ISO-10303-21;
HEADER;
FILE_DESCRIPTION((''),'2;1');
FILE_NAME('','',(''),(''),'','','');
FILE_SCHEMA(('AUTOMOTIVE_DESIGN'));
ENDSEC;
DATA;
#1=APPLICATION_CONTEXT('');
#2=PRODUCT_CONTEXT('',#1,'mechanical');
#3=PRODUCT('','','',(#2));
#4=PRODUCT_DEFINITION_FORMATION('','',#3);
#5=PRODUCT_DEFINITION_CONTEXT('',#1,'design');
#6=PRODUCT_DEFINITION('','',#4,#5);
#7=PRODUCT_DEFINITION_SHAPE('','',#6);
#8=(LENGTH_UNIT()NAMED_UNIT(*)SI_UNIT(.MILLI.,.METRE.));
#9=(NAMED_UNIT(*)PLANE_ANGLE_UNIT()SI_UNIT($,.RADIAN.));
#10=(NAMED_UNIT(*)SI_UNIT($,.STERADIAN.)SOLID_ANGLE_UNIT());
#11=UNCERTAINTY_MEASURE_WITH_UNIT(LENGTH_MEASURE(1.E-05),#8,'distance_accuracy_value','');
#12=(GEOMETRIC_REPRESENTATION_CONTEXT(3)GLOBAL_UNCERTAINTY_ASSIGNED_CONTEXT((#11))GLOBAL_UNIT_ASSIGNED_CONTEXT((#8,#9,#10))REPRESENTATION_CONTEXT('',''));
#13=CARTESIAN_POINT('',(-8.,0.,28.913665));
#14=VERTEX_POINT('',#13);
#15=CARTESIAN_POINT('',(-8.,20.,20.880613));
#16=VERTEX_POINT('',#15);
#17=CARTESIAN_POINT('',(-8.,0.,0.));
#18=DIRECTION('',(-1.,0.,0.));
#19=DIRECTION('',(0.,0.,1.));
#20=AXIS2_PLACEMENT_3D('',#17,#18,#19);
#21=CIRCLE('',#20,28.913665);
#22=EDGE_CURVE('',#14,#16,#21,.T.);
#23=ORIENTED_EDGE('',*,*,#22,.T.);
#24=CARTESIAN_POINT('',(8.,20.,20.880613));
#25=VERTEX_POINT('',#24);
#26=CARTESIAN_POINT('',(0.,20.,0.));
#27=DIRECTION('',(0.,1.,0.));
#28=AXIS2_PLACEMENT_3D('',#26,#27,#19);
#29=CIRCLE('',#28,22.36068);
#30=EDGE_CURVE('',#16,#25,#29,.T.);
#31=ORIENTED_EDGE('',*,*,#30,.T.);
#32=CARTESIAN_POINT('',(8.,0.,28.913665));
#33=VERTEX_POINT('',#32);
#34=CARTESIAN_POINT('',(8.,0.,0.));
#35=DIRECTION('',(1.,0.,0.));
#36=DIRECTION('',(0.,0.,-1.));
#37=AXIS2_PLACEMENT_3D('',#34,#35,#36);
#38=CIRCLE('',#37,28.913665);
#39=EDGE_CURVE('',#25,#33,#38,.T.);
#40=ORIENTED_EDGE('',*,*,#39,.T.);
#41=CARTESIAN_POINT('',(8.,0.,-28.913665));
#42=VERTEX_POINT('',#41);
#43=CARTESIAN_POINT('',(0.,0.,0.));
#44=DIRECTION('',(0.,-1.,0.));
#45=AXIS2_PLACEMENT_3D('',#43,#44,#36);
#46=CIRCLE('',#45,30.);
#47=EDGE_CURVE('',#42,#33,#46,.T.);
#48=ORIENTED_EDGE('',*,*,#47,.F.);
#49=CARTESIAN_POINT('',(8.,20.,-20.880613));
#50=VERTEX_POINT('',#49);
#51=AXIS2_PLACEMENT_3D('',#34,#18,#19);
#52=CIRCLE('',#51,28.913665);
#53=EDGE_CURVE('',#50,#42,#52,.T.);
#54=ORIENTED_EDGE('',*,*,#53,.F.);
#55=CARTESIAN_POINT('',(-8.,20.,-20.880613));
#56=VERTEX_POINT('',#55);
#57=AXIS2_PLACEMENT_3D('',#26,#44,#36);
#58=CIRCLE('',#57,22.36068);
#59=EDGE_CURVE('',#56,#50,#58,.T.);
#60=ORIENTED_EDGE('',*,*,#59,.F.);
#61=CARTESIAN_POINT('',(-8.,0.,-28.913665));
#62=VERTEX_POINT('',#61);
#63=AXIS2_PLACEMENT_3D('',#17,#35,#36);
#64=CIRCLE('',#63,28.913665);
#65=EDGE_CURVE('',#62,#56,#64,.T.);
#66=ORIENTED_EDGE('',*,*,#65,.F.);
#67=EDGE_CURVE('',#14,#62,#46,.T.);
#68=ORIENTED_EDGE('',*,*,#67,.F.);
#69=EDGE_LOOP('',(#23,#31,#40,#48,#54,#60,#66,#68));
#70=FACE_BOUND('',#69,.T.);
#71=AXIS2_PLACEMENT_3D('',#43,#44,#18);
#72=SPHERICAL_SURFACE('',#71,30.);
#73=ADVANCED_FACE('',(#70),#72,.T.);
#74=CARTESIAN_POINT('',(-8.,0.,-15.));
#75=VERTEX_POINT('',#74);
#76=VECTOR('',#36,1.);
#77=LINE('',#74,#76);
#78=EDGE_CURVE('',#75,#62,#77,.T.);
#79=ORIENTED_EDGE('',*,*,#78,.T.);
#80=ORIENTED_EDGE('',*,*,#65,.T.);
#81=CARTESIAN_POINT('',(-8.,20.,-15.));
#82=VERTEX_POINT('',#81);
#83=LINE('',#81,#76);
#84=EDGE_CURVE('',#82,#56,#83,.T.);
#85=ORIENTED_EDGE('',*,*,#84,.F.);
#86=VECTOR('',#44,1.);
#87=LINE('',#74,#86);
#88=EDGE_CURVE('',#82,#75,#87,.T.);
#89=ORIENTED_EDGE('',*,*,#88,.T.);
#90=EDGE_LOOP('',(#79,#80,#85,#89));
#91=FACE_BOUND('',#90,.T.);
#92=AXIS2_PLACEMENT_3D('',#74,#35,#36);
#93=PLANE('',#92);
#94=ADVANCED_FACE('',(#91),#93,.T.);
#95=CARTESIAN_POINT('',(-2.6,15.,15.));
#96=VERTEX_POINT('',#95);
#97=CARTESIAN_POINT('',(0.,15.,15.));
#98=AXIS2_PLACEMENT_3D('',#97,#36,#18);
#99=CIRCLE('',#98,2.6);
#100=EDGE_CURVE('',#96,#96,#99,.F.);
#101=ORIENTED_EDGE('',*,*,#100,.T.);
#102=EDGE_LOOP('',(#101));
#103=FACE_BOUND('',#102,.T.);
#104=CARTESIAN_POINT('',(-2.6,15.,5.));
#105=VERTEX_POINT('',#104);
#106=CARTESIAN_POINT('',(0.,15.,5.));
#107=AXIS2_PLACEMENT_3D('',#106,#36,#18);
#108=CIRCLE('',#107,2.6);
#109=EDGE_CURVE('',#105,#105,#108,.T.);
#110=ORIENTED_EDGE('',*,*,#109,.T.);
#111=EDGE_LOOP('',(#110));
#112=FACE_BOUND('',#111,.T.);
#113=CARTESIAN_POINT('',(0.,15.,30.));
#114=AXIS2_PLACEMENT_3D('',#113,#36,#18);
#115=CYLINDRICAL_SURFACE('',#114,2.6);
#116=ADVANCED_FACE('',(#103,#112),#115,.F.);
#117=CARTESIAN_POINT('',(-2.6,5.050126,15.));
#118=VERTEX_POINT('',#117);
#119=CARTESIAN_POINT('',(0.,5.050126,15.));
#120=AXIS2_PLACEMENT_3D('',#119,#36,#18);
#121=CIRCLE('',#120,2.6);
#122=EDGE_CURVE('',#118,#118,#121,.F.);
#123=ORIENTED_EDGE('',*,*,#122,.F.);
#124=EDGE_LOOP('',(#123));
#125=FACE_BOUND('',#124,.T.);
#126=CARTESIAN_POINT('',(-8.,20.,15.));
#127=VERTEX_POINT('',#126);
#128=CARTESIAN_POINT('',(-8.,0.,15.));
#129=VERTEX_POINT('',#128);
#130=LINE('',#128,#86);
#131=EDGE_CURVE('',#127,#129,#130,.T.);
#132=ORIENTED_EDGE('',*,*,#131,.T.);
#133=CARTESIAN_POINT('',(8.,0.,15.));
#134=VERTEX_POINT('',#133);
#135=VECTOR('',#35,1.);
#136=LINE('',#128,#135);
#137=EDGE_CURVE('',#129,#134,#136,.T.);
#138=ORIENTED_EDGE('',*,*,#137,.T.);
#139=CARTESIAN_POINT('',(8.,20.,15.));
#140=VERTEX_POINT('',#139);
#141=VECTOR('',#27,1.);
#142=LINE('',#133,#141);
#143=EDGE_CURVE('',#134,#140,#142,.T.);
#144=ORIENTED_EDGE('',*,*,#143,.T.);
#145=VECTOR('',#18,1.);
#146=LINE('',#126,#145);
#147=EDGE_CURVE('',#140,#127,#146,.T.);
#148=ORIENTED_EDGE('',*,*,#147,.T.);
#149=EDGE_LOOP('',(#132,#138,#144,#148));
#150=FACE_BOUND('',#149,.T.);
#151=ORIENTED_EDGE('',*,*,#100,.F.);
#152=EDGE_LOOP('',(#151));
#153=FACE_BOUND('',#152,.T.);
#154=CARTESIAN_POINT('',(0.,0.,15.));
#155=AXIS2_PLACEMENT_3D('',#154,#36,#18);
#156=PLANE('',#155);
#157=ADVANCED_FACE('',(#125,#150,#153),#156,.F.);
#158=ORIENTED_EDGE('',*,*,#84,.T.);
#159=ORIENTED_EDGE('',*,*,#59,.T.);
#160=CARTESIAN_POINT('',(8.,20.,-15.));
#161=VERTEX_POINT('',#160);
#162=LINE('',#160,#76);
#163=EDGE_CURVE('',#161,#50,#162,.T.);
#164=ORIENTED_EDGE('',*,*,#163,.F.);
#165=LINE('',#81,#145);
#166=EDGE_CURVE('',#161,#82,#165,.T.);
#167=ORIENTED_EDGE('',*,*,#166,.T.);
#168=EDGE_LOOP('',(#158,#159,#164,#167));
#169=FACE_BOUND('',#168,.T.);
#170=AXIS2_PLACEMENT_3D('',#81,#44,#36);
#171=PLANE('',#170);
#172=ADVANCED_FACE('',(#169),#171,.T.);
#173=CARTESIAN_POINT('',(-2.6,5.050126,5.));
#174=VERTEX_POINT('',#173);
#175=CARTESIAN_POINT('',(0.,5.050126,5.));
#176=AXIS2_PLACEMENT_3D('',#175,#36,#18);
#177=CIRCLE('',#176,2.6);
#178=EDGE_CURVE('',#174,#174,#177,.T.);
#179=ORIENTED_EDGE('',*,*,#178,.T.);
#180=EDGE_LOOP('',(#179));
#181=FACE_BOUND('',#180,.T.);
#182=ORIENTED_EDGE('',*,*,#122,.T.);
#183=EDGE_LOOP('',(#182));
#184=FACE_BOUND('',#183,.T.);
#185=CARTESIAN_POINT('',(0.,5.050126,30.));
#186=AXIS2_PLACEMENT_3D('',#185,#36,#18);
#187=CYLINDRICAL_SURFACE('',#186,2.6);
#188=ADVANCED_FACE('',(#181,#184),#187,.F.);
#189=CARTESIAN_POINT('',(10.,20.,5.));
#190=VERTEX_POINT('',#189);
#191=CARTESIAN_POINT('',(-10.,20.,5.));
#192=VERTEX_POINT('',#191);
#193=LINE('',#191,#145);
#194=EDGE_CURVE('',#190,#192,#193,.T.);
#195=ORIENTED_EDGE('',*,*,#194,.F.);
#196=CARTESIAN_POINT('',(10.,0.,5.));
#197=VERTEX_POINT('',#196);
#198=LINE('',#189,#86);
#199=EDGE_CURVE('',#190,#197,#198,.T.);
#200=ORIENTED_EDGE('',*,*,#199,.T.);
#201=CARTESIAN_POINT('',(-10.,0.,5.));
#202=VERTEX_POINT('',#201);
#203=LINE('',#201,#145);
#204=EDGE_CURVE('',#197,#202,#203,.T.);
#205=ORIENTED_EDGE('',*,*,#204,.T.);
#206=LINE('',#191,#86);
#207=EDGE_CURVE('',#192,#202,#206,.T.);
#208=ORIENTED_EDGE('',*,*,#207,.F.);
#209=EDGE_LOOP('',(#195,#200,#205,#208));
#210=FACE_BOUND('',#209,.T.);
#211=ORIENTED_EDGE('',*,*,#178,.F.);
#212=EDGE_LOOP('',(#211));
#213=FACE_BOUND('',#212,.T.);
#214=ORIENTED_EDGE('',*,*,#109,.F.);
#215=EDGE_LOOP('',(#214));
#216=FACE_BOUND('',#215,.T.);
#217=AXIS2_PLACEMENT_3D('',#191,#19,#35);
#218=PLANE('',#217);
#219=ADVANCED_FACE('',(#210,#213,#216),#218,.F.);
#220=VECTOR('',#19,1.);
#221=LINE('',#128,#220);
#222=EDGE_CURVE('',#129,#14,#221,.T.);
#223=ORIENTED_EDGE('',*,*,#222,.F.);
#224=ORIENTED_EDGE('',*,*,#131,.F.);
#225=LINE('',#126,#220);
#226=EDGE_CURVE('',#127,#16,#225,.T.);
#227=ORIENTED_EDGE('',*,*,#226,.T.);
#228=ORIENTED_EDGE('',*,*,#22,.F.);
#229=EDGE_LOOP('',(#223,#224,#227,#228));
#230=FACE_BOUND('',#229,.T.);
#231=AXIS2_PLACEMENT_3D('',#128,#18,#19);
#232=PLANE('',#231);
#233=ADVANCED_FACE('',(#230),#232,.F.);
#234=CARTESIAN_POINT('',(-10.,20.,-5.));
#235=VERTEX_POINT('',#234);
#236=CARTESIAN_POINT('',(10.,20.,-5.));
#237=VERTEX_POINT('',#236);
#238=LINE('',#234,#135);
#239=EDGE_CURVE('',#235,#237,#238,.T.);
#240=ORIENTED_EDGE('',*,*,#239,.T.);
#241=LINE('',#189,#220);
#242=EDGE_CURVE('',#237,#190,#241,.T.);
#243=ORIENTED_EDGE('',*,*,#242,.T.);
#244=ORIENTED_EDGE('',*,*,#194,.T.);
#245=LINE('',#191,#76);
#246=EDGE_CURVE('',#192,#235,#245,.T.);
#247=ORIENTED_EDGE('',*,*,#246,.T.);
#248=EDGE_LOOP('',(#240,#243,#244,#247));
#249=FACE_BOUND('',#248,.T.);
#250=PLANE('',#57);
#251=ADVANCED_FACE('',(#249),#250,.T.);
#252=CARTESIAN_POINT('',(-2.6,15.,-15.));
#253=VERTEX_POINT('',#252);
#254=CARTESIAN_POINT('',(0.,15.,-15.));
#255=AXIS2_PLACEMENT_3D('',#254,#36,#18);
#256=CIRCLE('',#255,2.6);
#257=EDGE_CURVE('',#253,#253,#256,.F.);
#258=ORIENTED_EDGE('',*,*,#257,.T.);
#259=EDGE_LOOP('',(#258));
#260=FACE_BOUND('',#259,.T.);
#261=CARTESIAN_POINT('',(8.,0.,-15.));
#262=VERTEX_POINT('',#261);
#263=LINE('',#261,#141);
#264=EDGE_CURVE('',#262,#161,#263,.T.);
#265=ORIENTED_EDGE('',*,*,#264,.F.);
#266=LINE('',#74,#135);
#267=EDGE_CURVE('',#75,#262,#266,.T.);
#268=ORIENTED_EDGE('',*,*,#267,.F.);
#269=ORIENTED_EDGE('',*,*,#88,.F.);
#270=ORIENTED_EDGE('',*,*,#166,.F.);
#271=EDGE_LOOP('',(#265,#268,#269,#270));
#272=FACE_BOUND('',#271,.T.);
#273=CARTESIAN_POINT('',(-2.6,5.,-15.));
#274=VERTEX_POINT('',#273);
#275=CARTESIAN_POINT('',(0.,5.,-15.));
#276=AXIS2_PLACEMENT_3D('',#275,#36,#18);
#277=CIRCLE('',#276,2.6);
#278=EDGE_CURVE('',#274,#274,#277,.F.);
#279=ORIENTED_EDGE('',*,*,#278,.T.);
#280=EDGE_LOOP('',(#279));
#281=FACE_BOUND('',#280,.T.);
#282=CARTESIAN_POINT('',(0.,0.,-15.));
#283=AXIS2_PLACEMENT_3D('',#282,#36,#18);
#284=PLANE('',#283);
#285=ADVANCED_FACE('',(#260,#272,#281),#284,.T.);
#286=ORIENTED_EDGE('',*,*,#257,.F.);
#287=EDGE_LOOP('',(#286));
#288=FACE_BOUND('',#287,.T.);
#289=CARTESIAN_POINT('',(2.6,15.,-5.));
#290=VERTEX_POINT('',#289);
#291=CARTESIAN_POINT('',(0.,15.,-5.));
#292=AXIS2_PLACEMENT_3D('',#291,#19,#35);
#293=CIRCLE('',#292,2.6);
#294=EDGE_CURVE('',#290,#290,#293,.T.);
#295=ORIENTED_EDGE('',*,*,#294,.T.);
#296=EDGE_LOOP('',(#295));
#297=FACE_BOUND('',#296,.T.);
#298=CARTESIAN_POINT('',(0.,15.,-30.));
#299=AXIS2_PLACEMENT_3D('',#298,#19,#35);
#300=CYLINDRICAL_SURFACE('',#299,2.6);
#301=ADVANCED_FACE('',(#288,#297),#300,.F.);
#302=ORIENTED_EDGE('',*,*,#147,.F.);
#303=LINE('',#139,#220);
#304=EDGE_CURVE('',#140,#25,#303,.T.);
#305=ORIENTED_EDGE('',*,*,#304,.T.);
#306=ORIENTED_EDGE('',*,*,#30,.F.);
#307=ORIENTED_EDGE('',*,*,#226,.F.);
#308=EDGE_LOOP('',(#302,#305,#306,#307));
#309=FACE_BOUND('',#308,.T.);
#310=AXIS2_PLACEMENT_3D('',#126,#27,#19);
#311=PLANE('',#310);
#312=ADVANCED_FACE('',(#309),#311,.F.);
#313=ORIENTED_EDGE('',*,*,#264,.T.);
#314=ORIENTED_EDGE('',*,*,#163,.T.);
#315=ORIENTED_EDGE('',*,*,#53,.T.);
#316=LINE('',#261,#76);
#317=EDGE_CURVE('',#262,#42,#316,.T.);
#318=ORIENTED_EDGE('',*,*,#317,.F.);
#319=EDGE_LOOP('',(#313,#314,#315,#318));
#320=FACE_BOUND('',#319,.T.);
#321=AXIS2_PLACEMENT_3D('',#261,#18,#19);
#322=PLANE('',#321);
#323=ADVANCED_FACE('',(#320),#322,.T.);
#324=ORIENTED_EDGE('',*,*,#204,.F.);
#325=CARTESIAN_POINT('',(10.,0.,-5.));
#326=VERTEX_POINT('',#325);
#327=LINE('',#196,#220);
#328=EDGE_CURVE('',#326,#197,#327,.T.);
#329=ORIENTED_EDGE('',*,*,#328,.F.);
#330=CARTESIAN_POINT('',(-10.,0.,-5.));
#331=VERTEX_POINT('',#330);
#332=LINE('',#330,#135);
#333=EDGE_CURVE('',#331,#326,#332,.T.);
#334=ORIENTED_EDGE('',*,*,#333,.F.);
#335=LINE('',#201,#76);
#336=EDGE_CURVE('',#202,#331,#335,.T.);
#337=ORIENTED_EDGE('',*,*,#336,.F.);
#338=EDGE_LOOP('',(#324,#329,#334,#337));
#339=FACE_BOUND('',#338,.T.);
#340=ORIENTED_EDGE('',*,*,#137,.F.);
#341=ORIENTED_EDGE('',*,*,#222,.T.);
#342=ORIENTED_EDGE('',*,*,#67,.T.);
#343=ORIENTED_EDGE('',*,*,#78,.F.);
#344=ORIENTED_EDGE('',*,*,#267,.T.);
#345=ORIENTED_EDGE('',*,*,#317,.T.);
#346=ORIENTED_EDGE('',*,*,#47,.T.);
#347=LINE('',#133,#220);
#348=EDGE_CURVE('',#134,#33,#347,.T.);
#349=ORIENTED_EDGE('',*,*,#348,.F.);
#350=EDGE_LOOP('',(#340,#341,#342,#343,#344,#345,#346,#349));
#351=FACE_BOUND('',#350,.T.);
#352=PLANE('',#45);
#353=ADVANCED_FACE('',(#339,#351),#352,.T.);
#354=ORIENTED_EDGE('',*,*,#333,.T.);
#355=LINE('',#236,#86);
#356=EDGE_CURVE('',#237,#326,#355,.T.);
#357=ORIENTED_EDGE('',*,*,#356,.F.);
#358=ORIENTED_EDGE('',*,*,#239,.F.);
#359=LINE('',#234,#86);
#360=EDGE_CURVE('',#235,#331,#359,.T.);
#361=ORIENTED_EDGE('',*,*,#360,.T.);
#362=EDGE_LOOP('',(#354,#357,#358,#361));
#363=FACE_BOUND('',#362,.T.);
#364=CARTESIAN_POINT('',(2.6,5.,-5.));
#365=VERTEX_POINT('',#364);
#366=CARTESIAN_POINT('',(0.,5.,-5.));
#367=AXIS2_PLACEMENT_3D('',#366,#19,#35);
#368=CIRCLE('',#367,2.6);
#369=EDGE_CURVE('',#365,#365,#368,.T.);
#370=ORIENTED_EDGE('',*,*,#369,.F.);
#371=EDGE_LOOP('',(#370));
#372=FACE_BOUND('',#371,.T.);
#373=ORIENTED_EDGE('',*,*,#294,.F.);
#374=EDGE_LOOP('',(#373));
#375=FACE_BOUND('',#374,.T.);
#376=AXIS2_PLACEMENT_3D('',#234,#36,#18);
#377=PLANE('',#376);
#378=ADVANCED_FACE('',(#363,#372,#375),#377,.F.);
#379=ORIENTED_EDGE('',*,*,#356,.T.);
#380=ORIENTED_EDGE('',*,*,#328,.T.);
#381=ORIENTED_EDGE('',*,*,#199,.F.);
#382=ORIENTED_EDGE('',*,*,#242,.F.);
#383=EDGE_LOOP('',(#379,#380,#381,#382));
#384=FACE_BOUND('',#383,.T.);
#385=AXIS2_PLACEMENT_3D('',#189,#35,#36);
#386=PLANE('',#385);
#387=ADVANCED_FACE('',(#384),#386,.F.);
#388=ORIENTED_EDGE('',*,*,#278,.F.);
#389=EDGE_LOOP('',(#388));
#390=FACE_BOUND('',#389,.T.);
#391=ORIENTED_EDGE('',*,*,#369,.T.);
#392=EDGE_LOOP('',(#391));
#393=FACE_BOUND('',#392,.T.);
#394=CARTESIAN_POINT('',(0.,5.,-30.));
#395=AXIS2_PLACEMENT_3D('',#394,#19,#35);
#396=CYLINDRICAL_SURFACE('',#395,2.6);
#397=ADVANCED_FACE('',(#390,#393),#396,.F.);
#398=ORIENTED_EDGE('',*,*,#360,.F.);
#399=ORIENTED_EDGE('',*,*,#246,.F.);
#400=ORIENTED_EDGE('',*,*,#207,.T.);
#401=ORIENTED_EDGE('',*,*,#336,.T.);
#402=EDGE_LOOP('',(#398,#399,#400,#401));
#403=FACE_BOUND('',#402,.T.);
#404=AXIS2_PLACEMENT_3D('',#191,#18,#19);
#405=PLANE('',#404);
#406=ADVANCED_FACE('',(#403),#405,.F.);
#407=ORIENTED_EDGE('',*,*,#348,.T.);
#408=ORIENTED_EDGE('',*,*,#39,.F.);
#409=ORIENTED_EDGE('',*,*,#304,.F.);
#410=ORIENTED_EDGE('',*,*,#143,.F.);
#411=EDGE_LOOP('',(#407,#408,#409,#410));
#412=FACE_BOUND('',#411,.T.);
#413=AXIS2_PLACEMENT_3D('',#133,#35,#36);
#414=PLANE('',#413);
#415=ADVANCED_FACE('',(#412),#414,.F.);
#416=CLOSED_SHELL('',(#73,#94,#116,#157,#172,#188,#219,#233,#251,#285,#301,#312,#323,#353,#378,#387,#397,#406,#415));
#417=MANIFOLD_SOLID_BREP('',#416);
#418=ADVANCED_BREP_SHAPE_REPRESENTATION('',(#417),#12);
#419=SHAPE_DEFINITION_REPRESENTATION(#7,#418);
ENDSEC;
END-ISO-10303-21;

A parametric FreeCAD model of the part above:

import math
import FreeCAD as App
import Part
import Sketcher

V = App.Vector
Q = App.Units.Quantity


def add_polygon(sketch, points):
    """Adds a closed chain of lines whose ends are joined by coincident constraints."""
    first, n = sketch.GeometryCount, len(points)
    for a, b in zip(points, points[1:] + points[:1]):
        sketch.addGeometry(Part.LineSegment(App.Vector(*a, 0), App.Vector(*b, 0)), False)
    for i in range(n):
        sketch.addConstraint(Sketcher.Constraint("Coincident", first + i, 2, first + (i + 1) % n, 1))

doc = App.newDocument("Part")
body = doc.addObject("PartDesign::Body", "Body")

# Sketch on XY plane
sketch1 = body.newObject("Sketcher::SketchObject", "Sketch")
sketch1.AttachmentSupport = (doc.getObject("XY_Plane"), [""])
sketch1.MapMode = "FlatFace"
sketch1.addGeometry(Part.LineSegment(V(-30, 0, 0), V(0, 0, 0)), False)
sketch1.addGeometry(Part.LineSegment(V(0, 0, 0), V(0, 30, 0)), False)
sketch1.addGeometry(Part.ArcOfCircle(Part.Circle(V(0, 0, 0), V(0, 0, 1), 30), math.radians(90), math.radians(180)), False)
sketch1.addConstraint(Sketcher.Constraint("Coincident", 0, 2, 1, 1))
sketch1.addConstraint(Sketcher.Constraint("Coincident", 1, 2, 2, 1))
sketch1.addConstraint(Sketcher.Constraint("Coincident", 2, 2, 0, 1))
sketch1.addConstraint(Sketcher.Constraint("Horizontal", 0))
sketch1.addConstraint(Sketcher.Constraint("Vertical", 1))
sketch1.addConstraint(Sketcher.Constraint("Coincident", 2, 3, -1, 1))
sketch1.addConstraint(Sketcher.Constraint("Coincident", 0, 2, -1, 1))
sketch1.addConstraint(Sketcher.Constraint("Radius", 2, Q("30 mm")))
revolution = body.newObject("PartDesign::Revolution", "Revolution")
revolution.Profile = sketch1
revolution.ReferenceAxis = (sketch1, ["V_Axis"])
revolution.Angle = 360

# Sketch on XZ plane
sketch2 = body.newObject("Sketcher::SketchObject", "Sketch001")
sketch2.AttachmentSupport = (doc.getObject("XZ_Plane"), [""])
sketch2.MapMode = "FlatFace"
add_polygon(sketch2, [(-10, 5), (-10, -5), (10, -5), (10, 5)])  # lines 0-3
sketch2.addConstraint(Sketcher.Constraint("Vertical", 0))
sketch2.addConstraint(Sketcher.Constraint("Horizontal", 1))
sketch2.addConstraint(Sketcher.Constraint("Vertical", 2))
sketch2.addConstraint(Sketcher.Constraint("Horizontal", 3))
sketch2.addConstraint(Sketcher.Constraint("Symmetric", 0, 2, 2, 2, -1, 1))
sketch2.addConstraint(Sketcher.Constraint("DistanceX", 1, 1, 1, 2, Q("20 mm")))
sketch2.addConstraint(Sketcher.Constraint("DistanceY", 0, 2, 0, 1, Q("10 mm")))
pocket1 = body.newObject("PartDesign::Pocket", "Pocket")
pocket1.Profile = sketch2
pocket1.Length = 20

# Sketch on XY plane
sketch3 = body.newObject("Sketcher::SketchObject", "Sketch002")
sketch3.AttachmentSupport = (doc.getObject("XY_Plane"), [""])
sketch3.MapMode = "FlatFace"
sketch3.AttachmentOffset = App.Placement(V(0, 0, 5), App.Rotation())
sketch3.addGeometry(Part.Circle(V(0, 15, 0), V(0, 0, 1), 2.6), False)
sketch3.addGeometry(Part.Circle(V(0, 5.050126, 0), V(0, 0, 1), 2.6), False)
sketch3.addConstraint(Sketcher.Constraint("Equal", 0, 1))
sketch3.addConstraint(Sketcher.Constraint("PointOnObject", 0, 3, -2))
sketch3.addConstraint(Sketcher.Constraint("PointOnObject", 1, 3, -2))
sketch3.addConstraint(Sketcher.Constraint("Diameter", 0, Q("5.2 mm")))
sketch3.addConstraint(Sketcher.Constraint("DistanceY", -1, 1, 0, 3, Q("15 mm")))
sketch3.addConstraint(Sketcher.Constraint("DistanceY", -1, 1, 1, 3, Q("5.050126 mm")))
pocket2 = body.newObject("PartDesign::Pocket", "Pocket001")
pocket2.Profile = sketch3
pocket2.Type = "ThroughAll"
pocket2.Reversed = True

# Sketch on XY plane
sketch4 = body.newObject("Sketcher::SketchObject", "Sketch003")
sketch4.AttachmentSupport = (doc.getObject("XY_Plane"), [""])
sketch4.MapMode = "FlatFace"
sketch4.AttachmentOffset = App.Placement(V(0, 0, -5), App.Rotation())
sketch4.addGeometry(Part.Circle(V(0, 5, 0), V(0, 0, 1), 2.6), False)
sketch4.addGeometry(Part.Circle(V(0, 15, 0), V(0, 0, 1), 2.6), False)
sketch4.addConstraint(Sketcher.Constraint("Equal", 0, 1))
sketch4.addConstraint(Sketcher.Constraint("PointOnObject", 0, 3, -2))
sketch4.addConstraint(Sketcher.Constraint("PointOnObject", 1, 3, -2))
sketch4.addConstraint(Sketcher.Constraint("Diameter", 0, Q("5.2 mm")))
sketch4.addConstraint(Sketcher.Constraint("DistanceY", -1, 1, 0, 3, Q("5 mm")))
sketch4.addConstraint(Sketcher.Constraint("DistanceY", -1, 1, 1, 3, Q("15 mm")))
pocket3 = body.newObject("PartDesign::Pocket", "Pocket002")
pocket3.Profile = sketch4
pocket3.Type = "ThroughAll"

# Sketch on XY plane
sketch5 = body.newObject("Sketcher::SketchObject", "Sketch004")
sketch5.AttachmentSupport = (doc.getObject("XY_Plane"), [""])
sketch5.MapMode = "FlatFace"
sketch5.AttachmentOffset = App.Placement(V(0, 0, -30), App.Rotation())
add_polygon(sketch5, [(-8, 20), (-8, 0), (8, 0), (8, 20)])  # lines 0-3
sketch5.addConstraint(Sketcher.Constraint("Vertical", 0))
sketch5.addConstraint(Sketcher.Constraint("Horizontal", 1))
sketch5.addConstraint(Sketcher.Constraint("Vertical", 2))
sketch5.addConstraint(Sketcher.Constraint("Horizontal", 3))
sketch5.addConstraint(Sketcher.Constraint("Symmetric", 0, 2, 1, 2, -1, 1))
sketch5.addConstraint(Sketcher.Constraint("DistanceX", 1, 1, 1, 2, Q("16 mm")))
sketch5.addConstraint(Sketcher.Constraint("DistanceY", 0, 2, 0, 1, Q("20 mm")))
pocket4 = body.newObject("PartDesign::Pocket", "Pocket003")
pocket4.Profile = sketch5
pocket4.Length = 15
pocket4.Reversed = True

# Sketch on XY plane
sketch6 = body.newObject("Sketcher::SketchObject", "Sketch005")
sketch6.AttachmentSupport = (doc.getObject("XY_Plane"), [""])
sketch6.MapMode = "FlatFace"
sketch6.AttachmentOffset = App.Placement(V(0, 0, 30), App.Rotation())
add_polygon(sketch6, [(-8, 20), (-8, 0), (8, 0), (8, 20)])  # lines 0-3
sketch6.addConstraint(Sketcher.Constraint("Vertical", 0))
sketch6.addConstraint(Sketcher.Constraint("Horizontal", 1))
sketch6.addConstraint(Sketcher.Constraint("Vertical", 2))
sketch6.addConstraint(Sketcher.Constraint("Horizontal", 3))
sketch6.addConstraint(Sketcher.Constraint("Symmetric", 0, 2, 1, 2, -1, 1))
sketch6.addConstraint(Sketcher.Constraint("DistanceX", 1, 1, 1, 2, Q("16 mm")))
sketch6.addConstraint(Sketcher.Constraint("DistanceY", 0, 2, 0, 1, Q("20 mm")))
pocket5 = body.newObject("PartDesign::Pocket", "Pocket004")
pocket5.Profile = sketch6
pocket5.Length = 15

doc.recompute()
